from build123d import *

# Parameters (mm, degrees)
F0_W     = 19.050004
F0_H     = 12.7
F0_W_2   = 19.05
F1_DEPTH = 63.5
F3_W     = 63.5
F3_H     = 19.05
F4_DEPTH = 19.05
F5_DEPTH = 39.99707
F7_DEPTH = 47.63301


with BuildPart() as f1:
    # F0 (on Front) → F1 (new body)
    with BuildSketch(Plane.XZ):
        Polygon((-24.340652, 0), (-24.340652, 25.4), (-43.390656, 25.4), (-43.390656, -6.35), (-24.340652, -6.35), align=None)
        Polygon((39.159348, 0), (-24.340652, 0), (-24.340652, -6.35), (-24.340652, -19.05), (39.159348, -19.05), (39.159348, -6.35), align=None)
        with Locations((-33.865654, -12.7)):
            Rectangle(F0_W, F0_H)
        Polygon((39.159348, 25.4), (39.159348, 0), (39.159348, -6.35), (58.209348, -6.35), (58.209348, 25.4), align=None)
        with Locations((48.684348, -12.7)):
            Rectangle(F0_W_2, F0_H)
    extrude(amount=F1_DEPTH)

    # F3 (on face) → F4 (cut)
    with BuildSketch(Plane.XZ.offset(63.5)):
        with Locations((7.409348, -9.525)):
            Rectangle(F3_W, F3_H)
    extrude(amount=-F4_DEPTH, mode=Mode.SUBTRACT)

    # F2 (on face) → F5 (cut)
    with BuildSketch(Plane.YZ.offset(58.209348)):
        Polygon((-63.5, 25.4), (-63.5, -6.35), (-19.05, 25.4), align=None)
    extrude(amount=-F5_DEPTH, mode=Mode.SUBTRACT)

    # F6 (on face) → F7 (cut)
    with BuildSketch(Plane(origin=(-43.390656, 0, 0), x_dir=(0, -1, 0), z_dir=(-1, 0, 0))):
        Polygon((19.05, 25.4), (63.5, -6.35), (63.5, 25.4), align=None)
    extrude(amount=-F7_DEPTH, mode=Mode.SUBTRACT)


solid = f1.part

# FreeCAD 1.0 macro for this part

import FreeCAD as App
import Part
import Sketcher
from FreeCAD import Vector
Q = App.Units.Quantity

doc = App.newDocument("Part")
body = doc.addObject("PartDesign::Body", "Body")

# Sketch on XZ plane
sketch1 = body.newObject("Sketcher::SketchObject", "Sketch")
sketch1.AttachmentSupport = (doc.getObject("XZ_Plane"), [""])
sketch1.MapMode = "FlatFace"
sketch1.addGeometry([
    Part.LineSegment(Vector(-24, 25, 0), Vector(-43, 25, 0)),  # 0
    Part.LineSegment(Vector(-43, 25, 0), Vector(-43, -19, 0)),  # 1
    Part.LineSegment(Vector(-43, -19, 0), Vector(58, -19, 0)),  # 2
    Part.LineSegment(Vector(58, -19, 0), Vector(58, 25, 0)),  # 3
    Part.LineSegment(Vector(58, 25, 0), Vector(39, 25, 0)),  # 4
    Part.LineSegment(Vector(39, 25, 0), Vector(39, 0, 0)),  # 5
    Part.LineSegment(Vector(39, 0, 0), Vector(-24, 0, 0)),  # 6
    Part.LineSegment(Vector(-24, 0, 0), Vector(-24, 25, 0)),  # 7
], False)
sketch1.addConstraint([
    Sketcher.Constraint("Coincident", 0, 2, 1, 1),
    Sketcher.Constraint("Coincident", 1, 2, 2, 1),
    Sketcher.Constraint("Coincident", 2, 2, 3, 1),
    Sketcher.Constraint("Coincident", 3, 2, 4, 1),
    Sketcher.Constraint("Coincident", 4, 2, 5, 1),
    Sketcher.Constraint("Coincident", 5, 2, 6, 1),
    Sketcher.Constraint("Coincident", 6, 2, 7, 1),
    Sketcher.Constraint("Coincident", 7, 2, 0, 1),
    Sketcher.Constraint("Horizontal", 0),
    Sketcher.Constraint("Vertical", 1),
    Sketcher.Constraint("Horizontal", 2),
    Sketcher.Constraint("Vertical", 3),
    Sketcher.Constraint("Horizontal", 4),
    Sketcher.Constraint("Vertical", 5),
    Sketcher.Constraint("Horizontal", 6),
    Sketcher.Constraint("Vertical", 7),
    Sketcher.Constraint("PointOnObject", 5, 2, -1),
    Sketcher.Constraint("Horizontal", 0, 2, 3, 2),
    Sketcher.Constraint("DistanceX", 2, 1, 2, 2, Q("4.0000002 in")),
    Sketcher.Constraint("DistanceY", 5, 2, 5, 1, Q("1 in")),
    Sketcher.Constraint("DistanceX", 6, 2, 6, 1, Q("2.5 in")),
    Sketcher.Constraint("DistanceX", 0, 2, 0, 1, Q("0.7500002 in")),
    Sketcher.Constraint("DistanceY", 1, 2, 1, 1, Q("1.75 in")),
    Sketcher.Constraint("DistanceX", 6, 2, -1, 1, 24.340652),
])
pad1 = body.newObject("PartDesign::Pad", "Pad")
pad1.Profile = sketch1
pad1.Length = Q("2.5 in")

# Sketch on XZ plane
sketch2 = body.newObject("Sketcher::SketchObject", "Sketch001")
sketch2.AttachmentSupport = (doc.getObject("XZ_Plane"), [""])
sketch2.MapMode = "FlatFace"
sketch2.AttachmentOffset = App.Placement(Vector(0, 0, 2.5 * 25.4), App.Rotation())
sketch2.addGeometry([
    Part.LineSegment(Vector(-24, 0, 0), Vector(-24, -19, 0)),
    Part.LineSegment(Vector(-24, -19, 0), Vector(39, -19, 0)),
    Part.LineSegment(Vector(39, -19, 0), Vector(39, 0, 0)),
    Part.LineSegment(Vector(39, 0, 0), Vector(-24, 0, 0)),
], False)
sketch2.addConstraint([
    Sketcher.Constraint("Coincident", 0, 2, 1, 1),
    Sketcher.Constraint("Coincident", 1, 2, 2, 1),
    Sketcher.Constraint("Coincident", 2, 2, 3, 1),
    Sketcher.Constraint("Coincident", 3, 2, 0, 1),
    Sketcher.Constraint("Vertical", 0),
    Sketcher.Constraint("Horizontal", 1),
    Sketcher.Constraint("Vertical", 2),
    Sketcher.Constraint("Horizontal", 3),
    Sketcher.Constraint("PointOnObject", 2, 2, -1),
    Sketcher.Constraint("DistanceX", 1, 1, 1, 2, Q("2.5 in")),
    Sketcher.Constraint("DistanceY", 0, 2, 0, 1, Q("0.75 in")),
    Sketcher.Constraint("DistanceX", 0, 2, -1, 1, 24.340652),
])
pocket1 = body.newObject("PartDesign::Pocket", "Pocket")
pocket1.Profile = sketch2
pocket1.Length = Q("0.75 in")

# Sketch on YZ plane
sketch3 = body.newObject("Sketcher::SketchObject", "Sketch002")
sketch3.AttachmentSupport = (doc.getObject("YZ_Plane"), [""])
sketch3.MapMode = "FlatFace"
sketch3.AttachmentOffset = App.Placement(Vector(0, 0, 58.209348), App.Rotation())
sketch3.addGeometry([
    Part.LineSegment(Vector(-64, 25, 0), Vector(-64, -6, 0)),
    Part.LineSegment(Vector(-64, -6, 0), Vector(-19, 25, 0)),
    Part.LineSegment(Vector(-19, 25, 0), Vector(-64, 25, 0)),
], False)
sketch3.addConstraint([
    Sketcher.Constraint("Coincident", 0, 2, 1, 1),
    Sketcher.Constraint("Coincident", 1, 2, 2, 1),
    Sketcher.Constraint("Coincident", 2, 2, 0, 1),
    Sketcher.Constraint("Vertical", 0),
    Sketcher.Constraint("Horizontal", 2),
    Sketcher.Constraint("DistanceY", -1, 1, 1, 2, Q("1 in")),
    Sketcher.Constraint("DistanceX", 2, 2, 2, 1, Q("1.75 in")),
    Sketcher.Constraint("DistanceY", 0, 2, 0, 1, Q("1.25 in")),
    Sketcher.Constraint("DistanceX", 0, 2, -1, 1, Q("2.5 in")),
])
pocket2 = body.newObject("PartDesign::Pocket", "Pocket001")
pocket2.Profile = sketch3
pocket2.Length = 39.99707

# Sketch on YZ plane
sketch4 = body.newObject("Sketcher::SketchObject", "Sketch003")
sketch4.AttachmentSupport = (doc.getObject("YZ_Plane"), [""])
sketch4.MapMode = "FlatFace"
sketch4.AttachmentOffset = App.Placement(Vector(0, 0, -43.390656), App.Rotation())
sketch4.addGeometry([
    Part.LineSegment(Vector(-19, 25, 0), Vector(-64, -6, 0)),
    Part.LineSegment(Vector(-64, -6, 0), Vector(-64, 25, 0)),
    Part.LineSegment(Vector(-64, 25, 0), Vector(-19, 25, 0)),
], False)
sketch4.addConstraint([
    Sketcher.Constraint("Coincident", 0, 2, 1, 1),
    Sketcher.Constraint("Coincident", 1, 2, 2, 1),
    Sketcher.Constraint("Coincident", 2, 2, 0, 1),
    Sketcher.Constraint("Vertical", 1),
    Sketcher.Constraint("Horizontal", 2),
    Sketcher.Constraint("DistanceY", -1, 1, 1, 2, Q("1 in")),
    Sketcher.Constraint("DistanceX", 2, 1, 2, 2, Q("1.75 in")),
    Sketcher.Constraint("DistanceY", 1, 1, 1, 2, Q("1.25 in")),
    Sketcher.Constraint("DistanceX", 0, 2, -1, 1, Q("2.5 in")),
])
pocket3 = body.newObject("PartDesign::Pocket", "Pocket002")
pocket3.Profile = sketch4
pocket3.Length = 47.63301
pocket3.Reversed = True

doc.recompute()
